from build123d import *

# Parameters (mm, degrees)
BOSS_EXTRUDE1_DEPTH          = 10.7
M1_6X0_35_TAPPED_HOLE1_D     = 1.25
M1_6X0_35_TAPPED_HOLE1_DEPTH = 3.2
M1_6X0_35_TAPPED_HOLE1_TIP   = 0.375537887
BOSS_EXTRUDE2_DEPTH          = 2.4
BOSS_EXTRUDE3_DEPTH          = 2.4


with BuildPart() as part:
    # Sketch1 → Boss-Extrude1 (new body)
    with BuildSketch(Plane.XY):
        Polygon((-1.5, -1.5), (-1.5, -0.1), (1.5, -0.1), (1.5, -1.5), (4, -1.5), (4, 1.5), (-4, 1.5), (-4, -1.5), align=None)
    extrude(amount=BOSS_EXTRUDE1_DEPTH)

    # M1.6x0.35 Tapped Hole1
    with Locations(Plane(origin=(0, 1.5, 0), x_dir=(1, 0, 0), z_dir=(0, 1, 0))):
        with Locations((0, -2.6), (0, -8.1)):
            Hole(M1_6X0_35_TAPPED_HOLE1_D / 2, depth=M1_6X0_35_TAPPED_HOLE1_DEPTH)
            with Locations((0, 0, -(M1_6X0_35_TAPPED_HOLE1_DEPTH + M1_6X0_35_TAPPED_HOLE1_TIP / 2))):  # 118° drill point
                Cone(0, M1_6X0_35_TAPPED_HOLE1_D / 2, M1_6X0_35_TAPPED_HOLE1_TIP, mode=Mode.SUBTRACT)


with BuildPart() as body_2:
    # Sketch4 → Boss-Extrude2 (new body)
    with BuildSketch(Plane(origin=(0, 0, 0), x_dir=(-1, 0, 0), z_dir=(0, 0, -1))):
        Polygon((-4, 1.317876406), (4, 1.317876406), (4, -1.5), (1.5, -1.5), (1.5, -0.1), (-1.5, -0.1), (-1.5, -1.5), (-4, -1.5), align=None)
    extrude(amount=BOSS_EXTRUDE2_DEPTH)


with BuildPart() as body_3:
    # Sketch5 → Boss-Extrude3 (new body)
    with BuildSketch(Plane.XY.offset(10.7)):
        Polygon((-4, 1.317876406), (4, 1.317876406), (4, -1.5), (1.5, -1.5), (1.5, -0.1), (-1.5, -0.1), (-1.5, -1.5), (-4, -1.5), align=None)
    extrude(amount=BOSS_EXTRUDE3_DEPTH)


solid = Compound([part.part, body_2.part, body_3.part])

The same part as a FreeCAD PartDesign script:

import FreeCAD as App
import Part
import Sketcher

V = App.Vector

doc = App.newDocument("Part")
body = doc.addObject("PartDesign::Body", "Body")

sketch1 = body.newObject("Sketcher::SketchObject", "Sketch")
sketch1.AttachmentSupport = (doc.getObject("XY_Plane"), [""])
sketch1.MapMode = "FlatFace"
sketch1.addGeometry(Part.LineSegment(V(-1.5, -1.5, 0), V(-1.5, -0.1, 0)), False)
sketch1.addGeometry(Part.LineSegment(V(-1.5, -0.1, 0), V(1.5, -0.1, 0)), False)
sketch1.addGeometry(Part.LineSegment(V(1.5, -0.1, 0), V(1.5, -1.5, 0)), False)
sketch1.addGeometry(Part.LineSegment(V(1.5, -1.5, 0), V(4, -1.5, 0)), False)
sketch1.addGeometry(Part.LineSegment(V(4, -1.5, 0), V(4, 1.5, 0)), False)
sketch1.addGeometry(Part.LineSegment(V(4, 1.5, 0), V(-4, 1.5, 0)), False)
sketch1.addGeometry(Part.LineSegment(V(-4, 1.5, 0), V(-4, -1.5, 0)), False)
sketch1.addGeometry(Part.LineSegment(V(-4, -1.5, 0), V(-1.5, -1.5, 0)), False)
sketch1.addConstraint(Sketcher.Constraint("Coincident", 0, 2, 1, 1))
sketch1.addConstraint(Sketcher.Constraint("Coincident", 1, 2, 2, 1))
sketch1.addConstraint(Sketcher.Constraint("Coincident", 2, 2, 3, 1))
sketch1.addConstraint(Sketcher.Constraint("Coincident", 3, 2, 4, 1))
sketch1.addConstraint(Sketcher.Constraint("Coincident", 4, 2, 5, 1))
sketch1.addConstraint(Sketcher.Constraint("Coincident", 5, 2, 6, 1))
sketch1.addConstraint(Sketcher.Constraint("Coincident", 6, 2, 7, 1))
sketch1.addConstraint(Sketcher.Constraint("Coincident", 7, 2, 0, 1))
sketch1.addConstraint(Sketcher.Constraint("Vertical", 0))
sketch1.addConstraint(Sketcher.Constraint("Horizontal", 1))
sketch1.addConstraint(Sketcher.Constraint("Vertical", 2))
sketch1.addConstraint(Sketcher.Constraint("Horizontal", 3))
sketch1.addConstraint(Sketcher.Constraint("Vertical", 4))
sketch1.addConstraint(Sketcher.Constraint("Horizontal", 5))
sketch1.addConstraint(Sketcher.Constraint("Vertical", 6))
sketch1.addConstraint(Sketcher.Constraint("Horizontal", 7))
sketch1.addConstraint(Sketcher.Constraint("Symmetric", 3, 2, 5, 2, -1, 1))
sketch1.addConstraint(Sketcher.Constraint("Symmetric", 2, 2, 7, 2, -2))
sketch1.addConstraint(Sketcher.Constraint("Equal", 1, 4))
sketch1.addConstraint(Sketcher.Constraint("DistanceX", 1, 1, 1, 2, 3.0))
sketch1.addConstraint(Sketcher.Constraint("DistanceX", 5, 2, 5, 1, 8.0))
sketch1.addConstraint(Sketcher.Constraint("DistanceY", 0, 1, 0, 2, 1.4))
pad1 = body.newObject("PartDesign::Pad", "Pad")
pad1.Profile = sketch1
pad1.Length = 10.7

sketch2 = body.newObject("Sketcher::SketchObject", "Sketch001")
sketch2.AttachmentSupport = (doc.getObject("XZ_Plane"), [""])
sketch2.MapMode = "FlatFace"
sketch2.AttachmentOffset = App.Placement(V(0, 0, -1.5), App.Rotation())
sketch2.addGeometry(Part.Circle(V(0, 2.6, 0), V(0, 0, 1), 0.625), False)
sketch2.addGeometry(Part.Circle(V(0, 8.1, 0), V(0, 0, 1), 0.625), False)
sketch2.addConstraint(Sketcher.Constraint("Equal", 0, 1))
sketch2.addConstraint(Sketcher.Constraint("PointOnObject", 0, 3, -2))
sketch2.addConstraint(Sketcher.Constraint("PointOnObject", 1, 3, -2))
sketch2.addConstraint(Sketcher.Constraint("Diameter", 0, 1.25))
sketch2.addConstraint(Sketcher.Constraint("DistanceY", -1, 1, 0, 3, 2.6))
sketch2.addConstraint(Sketcher.Constraint("DistanceY", -1, 1, 1, 3, 8.1))
doc.recompute()
hole = body.newObject("PartDesign::Hole", "Hole")
hole.Profile = sketch2
hole.ThreadType = "None"
hole.Diameter = 1.25
hole.DepthType = "Dimension"
hole.Depth = 3.2
hole.DrillPoint = "Angled"
hole.DrillPointAngle = 118
hole.Reversed = True
body2 = doc.addObject("PartDesign::Body", "Body001")

sketch3 = body2.newObject("Sketcher::SketchObject", "Sketch002")
sketch3.AttachmentSupport = (doc.getObject("XY_Plane001"), [""])
sketch3.MapMode = "FlatFace"
sketch3.addGeometry(Part.LineSegment(V(-4, 1.317876, 0), V(4, 1.317876, 0)), False)
sketch3.addGeometry(Part.LineSegment(V(4, 1.317876, 0), V(4, -1.5, 0)), False)
sketch3.addGeometry(Part.LineSegment(V(4, -1.5, 0), V(1.5, -1.5, 0)), False)
sketch3.addGeometry(Part.LineSegment(V(1.5, -1.5, 0), V(1.5, -0.1, 0)), False)
sketch3.addGeometry(Part.LineSegment(V(1.5, -0.1, 0), V(-1.5, -0.1, 0)), False)
sketch3.addGeometry(Part.LineSegment(V(-1.5, -0.1, 0), V(-1.5, -1.5, 0)), False)
sketch3.addGeometry(Part.LineSegment(V(-1.5, -1.5, 0), V(-4, -1.5, 0)), False)
sketch3.addGeometry(Part.LineSegment(V(-4, -1.5, 0), V(-4, 1.317876, 0)), False)
sketch3.addConstraint(Sketcher.Constraint("Coincident", 0, 2, 1, 1))
sketch3.addConstraint(Sketcher.Constraint("Coincident", 1, 2, 2, 1))
sketch3.addConstraint(Sketcher.Constraint("Coincident", 2, 2, 3, 1))
sketch3.addConstraint(Sketcher.Constraint("Coincident", 3, 2, 4, 1))
sketch3.addConstraint(Sketcher.Constraint("Coincident", 4, 2, 5, 1))
sketch3.addConstraint(Sketcher.Constraint("Coincident", 5, 2, 6, 1))
sketch3.addConstraint(Sketcher.Constraint("Coincident", 6, 2, 7, 1))
sketch3.addConstraint(Sketcher.Constraint("Coincident", 7, 2, 0, 1))
sketch3.addConstraint(Sketcher.Constraint("Horizontal", 0))
sketch3.addConstraint(Sketcher.Constraint("Vertical", 1))
sketch3.addConstraint(Sketcher.Constraint("Horizontal", 2))
sketch3.addConstraint(Sketcher.Constraint("Vertical", 3))
sketch3.addConstraint(Sketcher.Constraint("Horizontal", 4))
sketch3.addConstraint(Sketcher.Constraint("Vertical", 5))
sketch3.addConstraint(Sketcher.Constraint("Horizontal", 6))
sketch3.addConstraint(Sketcher.Constraint("Vertical", 7))
sketch3.addConstraint(Sketcher.Constraint("Symmetric", 2, 2, 5, 2, -2))
sketch3.addConstraint(Sketcher.Constraint("Equal", 2, 6))
sketch3.addConstraint(Sketcher.Constraint("DistanceX", 0, 1, 0, 2, 8.0))
sketch3.addConstraint(Sketcher.Constraint("DistanceX", 4, 2, 4, 1, 3.0))
sketch3.addConstraint(Sketcher.Constraint("DistanceY", 3, 1, 3, 2, 1.4))
sketch3.addConstraint(Sketcher.Constraint("DistanceY", 1, 2, -1, 1, 1.5))
sketch3.addConstraint(Sketcher.Constraint("DistanceY", 1, 2, 1, 1, 2.817876))
pad2 = body2.newObject("PartDesign::Pad", "Pad001")
pad2.Profile = sketch3
pad2.Length = 2.4
pad2.Reversed = True
body3 = doc.addObject("PartDesign::Body", "Body002")

sketch4 = body3.newObject("Sketcher::SketchObject", "Sketch003")
sketch4.AttachmentSupport = (doc.getObject("XY_Plane002"), [""])
sketch4.MapMode = "FlatFace"
sketch4.AttachmentOffset = App.Placement(V(0, 0, 10.7), App.Rotation())
sketch4.addGeometry(Part.LineSegment(V(4, 1.317876, 0), V(-4, 1.317876, 0)), False)
sketch4.addGeometry(Part.LineSegment(V(-4, 1.317876, 0), V(-4, -1.5, 0)), False)
sketch4.addGeometry(Part.LineSegment(V(-4, -1.5, 0), V(-1.5, -1.5, 0)), False)
sketch4.addGeometry(Part.LineSegment(V(-1.5, -1.5, 0), V(-1.5, -0.1, 0)), False)
sketch4.addGeometry(Part.LineSegment(V(-1.5, -0.1, 0), V(1.5, -0.1, 0)), False)
sketch4.addGeometry(Part.LineSegment(V(1.5, -0.1, 0), V(1.5, -1.5, 0)), False)
sketch4.addGeometry(Part.LineSegment(V(1.5, -1.5, 0), V(4, -1.5, 0)), False)
sketch4.addGeometry(Part.LineSegment(V(4, -1.5, 0), V(4, 1.317876, 0)), False)
sketch4.addConstraint(Sketcher.Constraint("Coincident", 0, 2, 1, 1))
sketch4.addConstraint(Sketcher.Constraint("Coincident", 1, 2, 2, 1))
sketch4.addConstraint(Sketcher.Constraint("Coincident", 2, 2, 3, 1))
sketch4.addConstraint(Sketcher.Constraint("Coincident", 3, 2, 4, 1))
sketch4.addConstraint(Sketcher.Constraint("Coincident", 4, 2, 5, 1))
sketch4.addConstraint(Sketcher.Constraint("Coincident", 5, 2, 6, 1))
sketch4.addConstraint(Sketcher.Constraint("Coincident", 6, 2, 7, 1))
sketch4.addConstraint(Sketcher.Constraint("Coincident", 7, 2, 0, 1))
sketch4.addConstraint(Sketcher.Constraint("Horizontal", 0))
sketch4.addConstraint(Sketcher.Constraint("Vertical", 1))
sketch4.addConstraint(Sketcher.Constraint("Horizontal", 2))
sketch4.addConstraint(Sketcher.Constraint("Vertical", 3))
sketch4.addConstraint(Sketcher.Constraint("Horizontal", 4))
sketch4.addConstraint(Sketcher.Constraint("Vertical", 5))
sketch4.addConstraint(Sketcher.Constraint("Horizontal", 6))
sketch4.addConstraint(Sketcher.Constraint("Vertical", 7))
sketch4.addConstraint(Sketcher.Constraint("Symmetric", 2, 2, 5, 2, -2))
sketch4.addConstraint(Sketcher.Constraint("Equal", 2, 6))
sketch4.addConstraint(Sketcher.Constraint("DistanceX", 0, 2, 0, 1, 8.0))
sketch4.addConstraint(Sketcher.Constraint("DistanceX", 4, 1, 4, 2, 3.0))
sketch4.addConstraint(Sketcher.Constraint("DistanceY", 3, 1, 3, 2, 1.4))
sketch4.addConstraint(Sketcher.Constraint("DistanceY", 1, 2, -1, 1, 1.5))
sketch4.addConstraint(Sketcher.Constraint("DistanceY", 1, 2, 1, 1, 2.817876))
pad3 = body3.newObject("PartDesign::Pad", "Pad002")
pad3.Profile = sketch4
pad3.Length = 2.4

doc.recompute()
